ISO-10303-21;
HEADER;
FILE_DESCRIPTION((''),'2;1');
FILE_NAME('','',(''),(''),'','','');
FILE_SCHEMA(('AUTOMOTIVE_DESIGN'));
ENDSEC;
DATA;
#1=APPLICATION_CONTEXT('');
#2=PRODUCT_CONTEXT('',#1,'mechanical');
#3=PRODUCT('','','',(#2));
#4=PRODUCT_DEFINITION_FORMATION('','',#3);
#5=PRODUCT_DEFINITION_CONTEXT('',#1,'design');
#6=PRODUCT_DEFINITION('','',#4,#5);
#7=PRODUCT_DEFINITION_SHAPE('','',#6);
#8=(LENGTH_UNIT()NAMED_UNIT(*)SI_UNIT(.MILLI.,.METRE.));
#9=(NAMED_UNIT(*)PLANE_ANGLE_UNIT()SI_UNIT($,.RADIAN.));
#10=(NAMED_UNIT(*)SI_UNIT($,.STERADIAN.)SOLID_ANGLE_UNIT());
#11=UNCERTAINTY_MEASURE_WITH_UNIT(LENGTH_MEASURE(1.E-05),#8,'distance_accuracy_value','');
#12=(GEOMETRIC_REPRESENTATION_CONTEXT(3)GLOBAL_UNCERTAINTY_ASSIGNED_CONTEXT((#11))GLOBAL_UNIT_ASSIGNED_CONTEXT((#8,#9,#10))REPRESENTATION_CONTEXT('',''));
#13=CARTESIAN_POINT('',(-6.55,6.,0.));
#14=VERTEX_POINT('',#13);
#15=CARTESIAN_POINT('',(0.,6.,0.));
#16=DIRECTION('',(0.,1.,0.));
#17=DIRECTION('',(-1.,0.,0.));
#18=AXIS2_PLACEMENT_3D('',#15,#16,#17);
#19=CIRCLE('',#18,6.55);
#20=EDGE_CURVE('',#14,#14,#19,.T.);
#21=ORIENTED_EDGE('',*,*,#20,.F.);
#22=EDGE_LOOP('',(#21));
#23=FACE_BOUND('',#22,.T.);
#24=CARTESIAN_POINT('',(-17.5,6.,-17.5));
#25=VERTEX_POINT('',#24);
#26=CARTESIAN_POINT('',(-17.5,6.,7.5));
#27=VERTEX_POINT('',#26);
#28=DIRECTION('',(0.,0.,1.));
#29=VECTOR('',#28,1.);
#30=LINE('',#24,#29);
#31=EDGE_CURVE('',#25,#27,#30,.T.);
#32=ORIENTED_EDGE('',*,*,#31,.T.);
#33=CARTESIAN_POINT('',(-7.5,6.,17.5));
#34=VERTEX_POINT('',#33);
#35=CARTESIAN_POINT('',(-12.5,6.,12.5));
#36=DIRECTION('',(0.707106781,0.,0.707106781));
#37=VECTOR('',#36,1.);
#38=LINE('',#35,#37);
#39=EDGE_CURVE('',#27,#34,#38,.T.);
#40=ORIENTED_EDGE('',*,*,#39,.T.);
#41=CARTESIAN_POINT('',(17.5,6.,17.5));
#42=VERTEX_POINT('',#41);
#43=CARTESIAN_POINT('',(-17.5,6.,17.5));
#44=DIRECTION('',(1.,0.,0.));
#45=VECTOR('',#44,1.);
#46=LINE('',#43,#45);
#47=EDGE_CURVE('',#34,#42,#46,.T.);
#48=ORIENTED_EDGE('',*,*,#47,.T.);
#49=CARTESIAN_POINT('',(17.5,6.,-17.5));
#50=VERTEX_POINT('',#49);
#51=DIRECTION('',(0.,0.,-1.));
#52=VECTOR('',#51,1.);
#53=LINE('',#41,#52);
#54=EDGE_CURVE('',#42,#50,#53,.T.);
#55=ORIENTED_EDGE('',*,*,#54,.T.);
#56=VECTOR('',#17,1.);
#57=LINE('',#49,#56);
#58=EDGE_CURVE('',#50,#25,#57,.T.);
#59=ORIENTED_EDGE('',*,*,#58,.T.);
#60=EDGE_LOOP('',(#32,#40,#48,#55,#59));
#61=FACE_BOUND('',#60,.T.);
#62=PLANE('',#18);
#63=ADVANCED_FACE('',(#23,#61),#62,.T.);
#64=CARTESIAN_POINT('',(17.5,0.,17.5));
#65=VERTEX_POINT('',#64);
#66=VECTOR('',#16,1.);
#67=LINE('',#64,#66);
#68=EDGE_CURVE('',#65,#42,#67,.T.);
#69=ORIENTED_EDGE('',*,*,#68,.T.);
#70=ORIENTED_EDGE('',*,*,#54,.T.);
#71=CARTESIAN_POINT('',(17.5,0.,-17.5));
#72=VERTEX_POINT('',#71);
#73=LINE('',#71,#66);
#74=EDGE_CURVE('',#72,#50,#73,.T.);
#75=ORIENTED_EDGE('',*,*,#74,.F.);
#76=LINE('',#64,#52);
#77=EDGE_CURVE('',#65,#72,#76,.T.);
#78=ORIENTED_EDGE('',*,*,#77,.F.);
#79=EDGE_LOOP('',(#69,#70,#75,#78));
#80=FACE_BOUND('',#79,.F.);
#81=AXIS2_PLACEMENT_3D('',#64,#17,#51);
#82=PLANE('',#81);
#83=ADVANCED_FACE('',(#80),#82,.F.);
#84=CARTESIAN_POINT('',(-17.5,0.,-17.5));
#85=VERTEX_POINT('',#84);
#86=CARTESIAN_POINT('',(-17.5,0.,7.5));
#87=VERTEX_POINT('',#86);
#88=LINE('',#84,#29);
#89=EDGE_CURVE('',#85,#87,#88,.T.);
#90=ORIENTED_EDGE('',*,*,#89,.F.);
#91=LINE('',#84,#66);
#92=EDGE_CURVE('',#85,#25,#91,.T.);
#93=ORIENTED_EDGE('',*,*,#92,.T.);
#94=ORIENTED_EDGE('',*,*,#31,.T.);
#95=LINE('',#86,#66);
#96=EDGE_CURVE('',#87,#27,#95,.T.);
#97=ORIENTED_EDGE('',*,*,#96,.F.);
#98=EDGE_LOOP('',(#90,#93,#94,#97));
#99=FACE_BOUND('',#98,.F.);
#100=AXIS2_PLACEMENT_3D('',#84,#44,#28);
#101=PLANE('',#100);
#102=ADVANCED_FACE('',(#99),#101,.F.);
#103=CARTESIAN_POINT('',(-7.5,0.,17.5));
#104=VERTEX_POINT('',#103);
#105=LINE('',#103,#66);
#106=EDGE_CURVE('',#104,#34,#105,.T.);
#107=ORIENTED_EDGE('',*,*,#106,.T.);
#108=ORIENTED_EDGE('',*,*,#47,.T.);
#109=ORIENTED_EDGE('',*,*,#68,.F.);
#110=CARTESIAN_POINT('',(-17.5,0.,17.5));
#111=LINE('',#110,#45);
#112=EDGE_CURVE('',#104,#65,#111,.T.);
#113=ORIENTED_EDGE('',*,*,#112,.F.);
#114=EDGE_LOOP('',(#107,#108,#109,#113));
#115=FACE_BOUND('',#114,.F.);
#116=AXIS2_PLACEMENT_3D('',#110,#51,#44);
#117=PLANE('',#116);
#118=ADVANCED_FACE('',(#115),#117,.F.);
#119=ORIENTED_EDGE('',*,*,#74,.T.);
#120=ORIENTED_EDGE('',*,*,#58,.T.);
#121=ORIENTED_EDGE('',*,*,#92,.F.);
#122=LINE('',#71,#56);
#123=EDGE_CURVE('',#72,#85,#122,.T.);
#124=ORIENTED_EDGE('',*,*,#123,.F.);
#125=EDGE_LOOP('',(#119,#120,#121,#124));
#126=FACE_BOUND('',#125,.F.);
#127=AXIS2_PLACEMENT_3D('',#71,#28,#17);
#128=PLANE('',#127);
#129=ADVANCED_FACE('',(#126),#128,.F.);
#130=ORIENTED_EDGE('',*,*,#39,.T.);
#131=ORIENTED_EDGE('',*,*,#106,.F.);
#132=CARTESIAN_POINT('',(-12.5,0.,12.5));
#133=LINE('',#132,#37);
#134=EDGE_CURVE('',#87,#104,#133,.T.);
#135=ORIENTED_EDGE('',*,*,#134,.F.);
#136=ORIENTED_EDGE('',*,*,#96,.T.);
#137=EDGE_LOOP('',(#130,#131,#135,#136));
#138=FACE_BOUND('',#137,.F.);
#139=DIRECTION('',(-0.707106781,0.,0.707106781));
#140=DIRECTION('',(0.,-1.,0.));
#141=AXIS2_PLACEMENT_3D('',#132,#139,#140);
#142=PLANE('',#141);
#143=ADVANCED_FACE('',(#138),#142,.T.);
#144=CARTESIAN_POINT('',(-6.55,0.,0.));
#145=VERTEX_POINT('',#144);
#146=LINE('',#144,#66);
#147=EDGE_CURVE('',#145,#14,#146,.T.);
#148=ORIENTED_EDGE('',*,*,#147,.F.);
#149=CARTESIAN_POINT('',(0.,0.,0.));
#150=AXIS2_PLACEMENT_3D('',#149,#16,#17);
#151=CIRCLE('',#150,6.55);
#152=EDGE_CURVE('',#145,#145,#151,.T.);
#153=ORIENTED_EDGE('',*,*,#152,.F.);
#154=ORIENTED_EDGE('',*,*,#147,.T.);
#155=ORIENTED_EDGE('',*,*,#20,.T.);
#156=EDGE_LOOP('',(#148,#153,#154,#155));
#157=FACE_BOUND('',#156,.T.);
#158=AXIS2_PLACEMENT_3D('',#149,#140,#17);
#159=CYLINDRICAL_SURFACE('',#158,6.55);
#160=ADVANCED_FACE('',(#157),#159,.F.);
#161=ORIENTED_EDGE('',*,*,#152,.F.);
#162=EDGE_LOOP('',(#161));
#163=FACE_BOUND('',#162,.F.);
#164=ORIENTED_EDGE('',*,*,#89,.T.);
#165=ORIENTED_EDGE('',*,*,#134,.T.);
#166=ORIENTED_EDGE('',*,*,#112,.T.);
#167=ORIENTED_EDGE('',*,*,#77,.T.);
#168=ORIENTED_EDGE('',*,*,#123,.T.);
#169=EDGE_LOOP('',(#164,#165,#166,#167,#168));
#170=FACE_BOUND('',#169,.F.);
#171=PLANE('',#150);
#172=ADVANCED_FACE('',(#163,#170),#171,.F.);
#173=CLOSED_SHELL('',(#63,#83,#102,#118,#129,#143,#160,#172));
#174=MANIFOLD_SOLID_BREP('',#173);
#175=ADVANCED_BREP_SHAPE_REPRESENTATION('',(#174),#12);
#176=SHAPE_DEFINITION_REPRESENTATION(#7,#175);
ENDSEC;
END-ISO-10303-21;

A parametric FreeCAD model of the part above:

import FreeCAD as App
import Part
import Sketcher


def edges_at(feature, points):
    """Names of the edges that pass closest to the given points."""
    edges = feature.Shape.Edges
    near = lambda p: min(range(len(edges)), key=lambda i: edges[i].distToShape(Part.Vertex(*p))[0])
    return sorted({f"Edge{near(p) + 1}" for p in points})

doc = App.newDocument("Part")
body = doc.addObject("PartDesign::Body", "Body")

# Sketch on XZ plane
sketch1 = body.newObject("Sketcher::SketchObject", "Sketch")
sketch1.AttachmentSupport = (doc.getObject("XZ_Plane"), [""])
sketch1.MapMode = "FlatFace"
sketch1.addGeometry(Part.LineSegment(App.Vector(-18, -18, 0), App.Vector(-18, 18, 0)), False)
sketch1.addGeometry(Part.LineSegment(App.Vector(-18, 18, 0), App.Vector(18, 18, 0)), False)
sketch1.addGeometry(Part.LineSegment(App.Vector(18, 18, 0), App.Vector(18, -18, 0)), False)
sketch1.addGeometry(Part.LineSegment(App.Vector(18, -18, 0), App.Vector(-18, -18, 0)), False)
sketch1.addGeometry(Part.Circle(App.Vector(0, 0, 0), App.Vector(0, 0, 1), 7), False)
sketch1.addConstraint(Sketcher.Constraint("Coincident", 0, 2, 1, 1))
sketch1.addConstraint(Sketcher.Constraint("Coincident", 1, 2, 2, 1))
sketch1.addConstraint(Sketcher.Constraint("Coincident", 2, 2, 3, 1))
sketch1.addConstraint(Sketcher.Constraint("Coincident", 3, 2, 0, 1))
sketch1.addConstraint(Sketcher.Constraint("Vertical", 0))
sketch1.addConstraint(Sketcher.Constraint("Horizontal", 1))
sketch1.addConstraint(Sketcher.Constraint("Vertical", 2))
sketch1.addConstraint(Sketcher.Constraint("Horizontal", 3))
sketch1.addConstraint(Sketcher.Constraint("Coincident", 4, 3, -1, 1))
sketch1.addConstraint(Sketcher.Constraint("Symmetric", 0, 2, 2, 2, -1, 1))
sketch1.addConstraint(Sketcher.Constraint("Equal", 3, 0))
sketch1.addConstraint(Sketcher.Constraint("Diameter", 4, 13.1))
sketch1.addConstraint(Sketcher.Constraint("DistanceX", 1, 1, 1, 2, 35.0))
pad1 = body.newObject("PartDesign::Pad", "Pad")
pad1.Profile = sketch1
pad1.Length = 6
pad1.Reversed = True
doc.recompute()

chamfer = body.newObject("PartDesign::Chamfer", "Chamfer")
chamfer.Base = (pad1, edges_at(pad1, [(-17.5, 3, 17.5)]))
chamfer.Size = 10

doc.recompute()
